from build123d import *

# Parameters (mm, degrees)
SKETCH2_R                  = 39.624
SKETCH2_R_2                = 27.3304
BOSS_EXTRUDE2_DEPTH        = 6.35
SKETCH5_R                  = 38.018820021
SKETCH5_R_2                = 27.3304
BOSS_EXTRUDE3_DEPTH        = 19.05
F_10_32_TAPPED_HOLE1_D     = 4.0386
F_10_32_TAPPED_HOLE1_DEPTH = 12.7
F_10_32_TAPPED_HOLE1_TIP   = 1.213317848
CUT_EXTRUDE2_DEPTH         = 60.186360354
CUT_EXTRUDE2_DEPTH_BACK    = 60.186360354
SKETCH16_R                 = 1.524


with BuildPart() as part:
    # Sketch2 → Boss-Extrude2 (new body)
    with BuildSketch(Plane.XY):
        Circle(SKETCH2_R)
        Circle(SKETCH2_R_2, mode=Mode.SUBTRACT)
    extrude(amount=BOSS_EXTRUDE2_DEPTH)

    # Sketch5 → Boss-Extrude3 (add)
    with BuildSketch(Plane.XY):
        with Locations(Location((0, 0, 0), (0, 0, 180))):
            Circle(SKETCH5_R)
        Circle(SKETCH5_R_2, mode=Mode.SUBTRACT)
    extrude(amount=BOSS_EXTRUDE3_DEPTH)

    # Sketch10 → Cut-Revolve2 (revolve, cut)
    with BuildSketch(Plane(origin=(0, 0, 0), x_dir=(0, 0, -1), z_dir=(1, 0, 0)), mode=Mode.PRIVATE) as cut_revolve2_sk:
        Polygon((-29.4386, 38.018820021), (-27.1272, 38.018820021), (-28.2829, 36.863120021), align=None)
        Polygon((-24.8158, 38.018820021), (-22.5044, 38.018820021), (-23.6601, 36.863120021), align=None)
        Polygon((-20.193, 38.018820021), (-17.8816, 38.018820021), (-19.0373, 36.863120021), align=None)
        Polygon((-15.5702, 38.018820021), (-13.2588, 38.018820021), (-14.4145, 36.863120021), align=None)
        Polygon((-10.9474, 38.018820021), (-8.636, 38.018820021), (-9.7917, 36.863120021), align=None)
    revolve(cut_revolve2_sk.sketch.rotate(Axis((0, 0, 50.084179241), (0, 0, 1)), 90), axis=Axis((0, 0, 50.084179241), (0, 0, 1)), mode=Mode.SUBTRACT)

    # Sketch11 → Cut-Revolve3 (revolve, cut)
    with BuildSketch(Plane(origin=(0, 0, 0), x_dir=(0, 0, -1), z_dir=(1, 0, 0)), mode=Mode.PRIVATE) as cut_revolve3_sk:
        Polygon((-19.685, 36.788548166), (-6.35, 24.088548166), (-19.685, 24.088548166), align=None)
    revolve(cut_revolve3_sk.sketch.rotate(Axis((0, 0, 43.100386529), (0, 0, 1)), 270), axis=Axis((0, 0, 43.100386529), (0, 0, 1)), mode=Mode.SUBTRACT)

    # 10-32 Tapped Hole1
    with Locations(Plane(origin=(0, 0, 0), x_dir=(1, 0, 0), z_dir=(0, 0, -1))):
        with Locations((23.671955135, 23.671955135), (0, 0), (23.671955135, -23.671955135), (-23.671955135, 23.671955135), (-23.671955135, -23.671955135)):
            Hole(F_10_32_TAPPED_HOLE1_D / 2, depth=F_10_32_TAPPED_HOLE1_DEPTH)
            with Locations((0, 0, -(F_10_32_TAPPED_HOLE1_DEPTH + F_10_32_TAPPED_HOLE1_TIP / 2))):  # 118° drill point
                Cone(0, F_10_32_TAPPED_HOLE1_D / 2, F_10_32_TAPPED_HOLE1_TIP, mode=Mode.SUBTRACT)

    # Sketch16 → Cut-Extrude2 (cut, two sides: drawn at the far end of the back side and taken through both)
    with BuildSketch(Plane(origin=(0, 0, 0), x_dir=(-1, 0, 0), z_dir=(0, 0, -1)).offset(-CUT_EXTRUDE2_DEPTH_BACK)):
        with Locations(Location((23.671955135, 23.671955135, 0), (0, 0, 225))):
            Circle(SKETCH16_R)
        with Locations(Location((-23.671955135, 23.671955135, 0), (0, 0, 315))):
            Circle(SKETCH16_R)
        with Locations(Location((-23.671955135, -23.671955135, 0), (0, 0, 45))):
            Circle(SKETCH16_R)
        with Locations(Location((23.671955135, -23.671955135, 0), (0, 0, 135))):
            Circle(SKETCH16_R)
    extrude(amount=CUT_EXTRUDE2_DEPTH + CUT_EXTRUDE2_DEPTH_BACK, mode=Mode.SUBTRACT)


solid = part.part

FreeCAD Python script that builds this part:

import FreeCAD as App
import Part
import Sketcher
Q = App.Units.Quantity

doc = App.newDocument("Part")
params = doc.addObject("Spreadsheet::Sheet", "Params")
for row, (alias, value) in enumerate([
    ("sketch1_diameter", "3.12 in"),
    ("sketch1_diameter2", "2.152 in"),
    ("pad1_length", "0.25 in"),
    ("sketch2_diameter", "2.152 in"),
    ("pad2_length", "0.75 in"),
    ("sketch3_height", "0.091 in"),
    ("groove_angle", "360 deg"),
    ("sketch4_width", "0.5 in"),
    ("sketch4_height", "0.525 in"),
    ("groove2_angle", "360 deg"),
    ("sketch5_diameter", "0.159 in"),
    ("hole_diameter", "0.159 in"),
    ("hole_depth", "0.5 in"),
    ("sketch6_diameter", "0.12 in"),
], start=1):
    params.set(f"A{row}", alias)
    params.set(f"B{row}", "=" + value)
    params.setAlias(f"B{row}", alias)

body = doc.addObject("PartDesign::Body", "Body")

# Sketch on XY plane
sketch1 = body.newObject("Sketcher::SketchObject", "Sketch")
sketch1.AttachmentSupport = (doc.getObject("XY_Plane"), [""])
sketch1.MapMode = "FlatFace"
sketch1.addGeometry([
    Part.Circle(App.Vector(0, 0, 0), App.Vector(0, 0, 1), 40),
    Part.Circle(App.Vector(0, 0, 0), App.Vector(0, 0, 1), 27),
], False)
sketch1.addConstraint([
    Sketcher.Constraint("Coincident", 0, 3, -1, 1),
    Sketcher.Constraint("Coincident", 1, 3, -1, 1),
    Sketcher.Constraint("Diameter", 0, Q("3.12 in")),
    Sketcher.Constraint("Diameter", 1, Q("2.152 in")),
])
sketch1.setExpression("Constraints[2]", "Params.sketch1_diameter")
sketch1.setExpression("Constraints[3]", "Params.sketch1_diameter2")
pad1 = body.newObject("PartDesign::Pad", "Pad")
pad1.Profile = sketch1
pad1.setExpression("Length", "Params.pad1_length")

# Sketch on XY plane
sketch2 = body.newObject("Sketcher::SketchObject", "Sketch001")
sketch2.AttachmentSupport = (doc.getObject("XY_Plane"), [""])
sketch2.MapMode = "FlatFace"
sketch2.addGeometry([
    Part.Circle(App.Vector(0, 0, 0), App.Vector(0, 0, 1), 38),
    Part.Circle(App.Vector(0, 0, 0), App.Vector(0, 0, 1), 27),
], False)
sketch2.addConstraint([
    Sketcher.Constraint("Coincident", 0, 3, -1, 1),
    Sketcher.Constraint("Coincident", 1, 3, -1, 1),
    Sketcher.Constraint("Diameter", 1, Q("2.152 in")),
    Sketcher.Constraint("Diameter", 0, 76.03764),
])
sketch2.setExpression("Constraints[2]", "Params.sketch2_diameter")
pad2 = body.newObject("PartDesign::Pad", "Pad001")
pad2.Profile = sketch2
pad2.setExpression("Length", "Params.pad2_length")

# Sketch on YZ plane
sketch3 = body.newObject("Sketcher::SketchObject", "Sketch002")
sketch3.AttachmentSupport = (doc.getObject("YZ_Plane"), [""])
sketch3.MapMode = "FlatFace"
sketch3.addGeometry([
    Part.LineSegment(App.Vector(38, 27.1, 0), App.Vector(38, 29.4, 0)),  # 0
    Part.LineSegment(App.Vector(38, 29.4, 0), App.Vector(36.9, 28.3, 0)),  # 1
    Part.LineSegment(App.Vector(36.9, 28.3, 0), App.Vector(38, 27.1, 0)),  # 2
    Part.LineSegment(App.Vector(38, 22.5, 0), App.Vector(38, 24.8, 0)),  # 3
    Part.LineSegment(App.Vector(38, 24.8, 0), App.Vector(36.9, 23.7, 0)),  # 4
    Part.LineSegment(App.Vector(36.9, 23.7, 0), App.Vector(38, 22.5, 0)),  # 5
    Part.LineSegment(App.Vector(38, 17.9, 0), App.Vector(38, 20.2, 0)),  # 6
    Part.LineSegment(App.Vector(38, 20.2, 0), App.Vector(36.9, 19, 0)),  # 7
    Part.LineSegment(App.Vector(36.9, 19, 0), App.Vector(38, 17.9, 0)),  # 8
    Part.LineSegment(App.Vector(38, 13.3, 0), App.Vector(38, 15.6, 0)),  # 9
    Part.LineSegment(App.Vector(38, 15.6, 0), App.Vector(36.9, 14.4, 0)),  # 10
    Part.LineSegment(App.Vector(36.9, 14.4, 0), App.Vector(38, 13.3, 0)),  # 11
    Part.LineSegment(App.Vector(38, 8.6, 0), App.Vector(38, 10.9, 0)),  # 12
    Part.LineSegment(App.Vector(38, 10.9, 0), App.Vector(36.9, 9.8, 0)),  # 13
    Part.LineSegment(App.Vector(36.9, 9.8, 0), App.Vector(38, 8.6, 0)),  # 14
], False)
sketch3.addConstraint([
    Sketcher.Constraint("Coincident", 0, 2, 1, 1),
    Sketcher.Constraint("Coincident", 1, 2, 2, 1),
    Sketcher.Constraint("Coincident", 2, 2, 0, 1),
    Sketcher.Constraint("Coincident", 3, 2, 4, 1),
    Sketcher.Constraint("Coincident", 4, 2, 5, 1),
    Sketcher.Constraint("Coincident", 5, 2, 3, 1),
    Sketcher.Constraint("Coincident", 6, 2, 7, 1),
    Sketcher.Constraint("Coincident", 7, 2, 8, 1),
    Sketcher.Constraint("Coincident", 8, 2, 6, 1),
    Sketcher.Constraint("Coincident", 9, 2, 10, 1),
    Sketcher.Constraint("Coincident", 10, 2, 11, 1),
    Sketcher.Constraint("Coincident", 11, 2, 9, 1),
    Sketcher.Constraint("Coincident", 12, 2, 13, 1),
    Sketcher.Constraint("Coincident", 13, 2, 14, 1),
    Sketcher.Constraint("Coincident", 14, 2, 12, 1),
    Sketcher.Constraint("Vertical", 0),
    Sketcher.Constraint("Vertical", 3),
    Sketcher.Constraint("Vertical", 6),
    Sketcher.Constraint("Vertical", 9),
    Sketcher.Constraint("Vertical", 12),
    Sketcher.Constraint("Perpendicular", 1, 2),
    Sketcher.Constraint("Perpendicular", 2, 4),
    Sketcher.Constraint("Perpendicular", 4, 5),
    Sketcher.Constraint("Perpendicular", 5, 7),
    Sketcher.Constraint("Perpendicular", 7, 8),
    Sketcher.Constraint("Perpendicular", 8, 10),
    Sketcher.Constraint("Perpendicular", 10, 11),
    Sketcher.Constraint("Perpendicular", 11, 13),
    Sketcher.Constraint("Perpendicular", 13, 14),
    Sketcher.Constraint("Vertical", 2, 2, 3, 2),
    Sketcher.Constraint("Vertical", 1, 2, 4, 2),
    Sketcher.Constraint("Vertical", 5, 2, 6, 2),
    Sketcher.Constraint("Vertical", 4, 2, 7, 2),
    Sketcher.Constraint("Vertical", 8, 2, 9, 2),
    Sketcher.Constraint("Vertical", 7, 2, 10, 2),
    Sketcher.Constraint("Vertical", 11, 2, 12, 2),
    Sketcher.Constraint("Vertical", 10, 2, 13, 2),
    Sketcher.Constraint("Equal", 1, 2),
    Sketcher.Constraint("DistanceY", 0, 1, 0, 2, Q("0.091 in")),
    Sketcher.Constraint("DistanceY", -1, 1, 14, 2, Q("0.34 in")),
    Sketcher.Constraint("DistanceY", -1, 1, 0, 2, Q("1.159 in")),
    Sketcher.Constraint("DistanceY", -1, 1, 3, 2, Q("0.977 in")),
    Sketcher.Constraint("DistanceY", -1, 1, 6, 2, Q("0.795 in")),
    Sketcher.Constraint("DistanceY", -1, 1, 9, 2, Q("0.613 in")),
    Sketcher.Constraint("DistanceX", -1, 1, 0, 2, 38.01882),
])
sketch3.setExpression("Constraints[38]", "Params.sketch3_height")
groove = body.newObject("PartDesign::Groove", "Groove")
groove.Profile = sketch3
groove.ReferenceAxis = (sketch3, ["V_Axis"])
groove.setExpression("Angle", "Params.groove_angle")

# Sketch on YZ plane
sketch4 = body.newObject("Sketcher::SketchObject", "Sketch003")
sketch4.AttachmentSupport = (doc.getObject("YZ_Plane"), [""])
sketch4.MapMode = "FlatFace"
sketch4.addGeometry([
    Part.LineSegment(App.Vector(24, 6, 0), App.Vector(37, 20, 0)),
    Part.LineSegment(App.Vector(37, 20, 0), App.Vector(24, 20, 0)),
    Part.LineSegment(App.Vector(24, 20, 0), App.Vector(24, 6, 0)),
], False)
sketch4.addConstraint([
    Sketcher.Constraint("Coincident", 0, 2, 1, 1),
    Sketcher.Constraint("Coincident", 1, 2, 2, 1),
    Sketcher.Constraint("Coincident", 2, 2, 0, 1),
    Sketcher.Constraint("Horizontal", 1),
    Sketcher.Constraint("Vertical", 2),
    Sketcher.Constraint("DistanceX", 1, 2, 1, 1, Q("0.5 in")),
    Sketcher.Constraint("DistanceY", 2, 2, 2, 1, Q("0.525 in")),
    Sketcher.Constraint("DistanceY", -1, 1, 2, 2, Q("0.25 in")),
    Sketcher.Constraint("DistanceX", -1, 1, 0, 2, 36.788548),
])
sketch4.setExpression("Constraints[5]", "Params.sketch4_width")
sketch4.setExpression("Constraints[6]", "Params.sketch4_height")
groove2 = body.newObject("PartDesign::Groove", "Groove001")
groove2.Profile = sketch4
groove2.ReferenceAxis = (sketch4, ["V_Axis"])
groove2.setExpression("Angle", "Params.groove2_angle")

# Sketch on XY plane
sketch5 = body.newObject("Sketcher::SketchObject", "Sketch004")
sketch5.AttachmentSupport = (doc.getObject("XY_Plane"), [""])
sketch5.MapMode = "FlatFace"
sketch5.addGeometry([
    Part.Circle(App.Vector(23.7, -23.7, 0), App.Vector(0, 0, 1), 2),  # 0
    Part.Circle(App.Vector(0, 0, 0), App.Vector(0, 0, 1), 2),  # 1
    Part.Circle(App.Vector(23.7, 23.7, 0), App.Vector(0, 0, 1), 2),  # 2
    Part.Circle(App.Vector(-23.7, -23.7, 0), App.Vector(0, 0, 1), 2),  # 3
    Part.Circle(App.Vector(-23.7, 23.7, 0), App.Vector(0, 0, 1), 2),  # 4
], False)
sketch5.addConstraint([
    Sketcher.Constraint("Coincident", 1, 3, -1, 1),
    Sketcher.Constraint("Equal", 0, 1),
    Sketcher.Constraint("Equal", 1, 2),
    Sketcher.Constraint("Equal", 2, 3),
    Sketcher.Constraint("Equal", 3, 4),
    Sketcher.Constraint("Symmetric", 2, 3, 3, 3, -1, 1),
    Sketcher.Constraint("Symmetric", 0, 3, 4, 3, -1, 1),
    Sketcher.Constraint("Symmetric", 0, 3, 3, 3, -2),
    Sketcher.Constraint("Diameter", 0, Q("0.159 in")),
    Sketcher.Constraint("DistanceY", 0, 3, 2, 3, 47.34391),
    Sketcher.Constraint("DistanceX", 3, 3, 0, 3, 47.34391),
])
sketch5.setExpression("Constraints[8]", "Params.sketch5_diameter")
doc.recompute()
hole = body.newObject("PartDesign::Hole", "Hole")
hole.Profile = sketch5
hole.ThreadType = "None"
hole.setExpression("Diameter", "Params.hole_diameter")
hole.DepthType = "Dimension"
hole.setExpression("Depth", "Params.hole_depth")
hole.DrillPoint = "Angled"
hole.DrillPointAngle = 118
hole.Reversed = True

# Sketch on XY plane
sketch6 = body.newObject("Sketcher::SketchObject", "Sketch005")
sketch6.AttachmentSupport = (doc.getObject("XY_Plane"), [""])
sketch6.MapMode = "FlatFace"
sketch6.addGeometry([
    Part.Circle(App.Vector(-23.7, 23.7, 0), App.Vector(0, 0, 1), 1.5),
    Part.Circle(App.Vector(23.7, 23.7, 0), App.Vector(0, 0, 1), 1.5),
    Part.Circle(App.Vector(23.7, -23.7, 0), App.Vector(0, 0, 1), 1.5),
    Part.Circle(App.Vector(-23.7, -23.7, 0), App.Vector(0, 0, 1), 1.5),
], False)
sketch6.addConstraint([
    Sketcher.Constraint("Equal", 0, 1),
    Sketcher.Constraint("Equal", 1, 2),
    Sketcher.Constraint("Equal", 2, 3),
    Sketcher.Constraint("Symmetric", 0, 3, 2, 3, -1, 1),
    Sketcher.Constraint("Symmetric", 1, 3, 3, 3, -1, 1),
    Sketcher.Constraint("Symmetric", 0, 3, 1, 3, -2),
    Sketcher.Constraint("Diameter", 0, Q("0.12 in")),
    Sketcher.Constraint("DistanceX", 0, 3, 1, 3, 47.34391),
    Sketcher.Constraint("DistanceY", 2, 3, 1, 3, 47.34391),
])
sketch6.setExpression("Constraints[6]", "Params.sketch6_diameter")
pocket1 = body.newObject("PartDesign::Pocket", "Pocket")
pocket1.Profile = sketch6
pocket1.Type = "ThroughAll"
pocket1.Midplane = True

doc.recompute()
